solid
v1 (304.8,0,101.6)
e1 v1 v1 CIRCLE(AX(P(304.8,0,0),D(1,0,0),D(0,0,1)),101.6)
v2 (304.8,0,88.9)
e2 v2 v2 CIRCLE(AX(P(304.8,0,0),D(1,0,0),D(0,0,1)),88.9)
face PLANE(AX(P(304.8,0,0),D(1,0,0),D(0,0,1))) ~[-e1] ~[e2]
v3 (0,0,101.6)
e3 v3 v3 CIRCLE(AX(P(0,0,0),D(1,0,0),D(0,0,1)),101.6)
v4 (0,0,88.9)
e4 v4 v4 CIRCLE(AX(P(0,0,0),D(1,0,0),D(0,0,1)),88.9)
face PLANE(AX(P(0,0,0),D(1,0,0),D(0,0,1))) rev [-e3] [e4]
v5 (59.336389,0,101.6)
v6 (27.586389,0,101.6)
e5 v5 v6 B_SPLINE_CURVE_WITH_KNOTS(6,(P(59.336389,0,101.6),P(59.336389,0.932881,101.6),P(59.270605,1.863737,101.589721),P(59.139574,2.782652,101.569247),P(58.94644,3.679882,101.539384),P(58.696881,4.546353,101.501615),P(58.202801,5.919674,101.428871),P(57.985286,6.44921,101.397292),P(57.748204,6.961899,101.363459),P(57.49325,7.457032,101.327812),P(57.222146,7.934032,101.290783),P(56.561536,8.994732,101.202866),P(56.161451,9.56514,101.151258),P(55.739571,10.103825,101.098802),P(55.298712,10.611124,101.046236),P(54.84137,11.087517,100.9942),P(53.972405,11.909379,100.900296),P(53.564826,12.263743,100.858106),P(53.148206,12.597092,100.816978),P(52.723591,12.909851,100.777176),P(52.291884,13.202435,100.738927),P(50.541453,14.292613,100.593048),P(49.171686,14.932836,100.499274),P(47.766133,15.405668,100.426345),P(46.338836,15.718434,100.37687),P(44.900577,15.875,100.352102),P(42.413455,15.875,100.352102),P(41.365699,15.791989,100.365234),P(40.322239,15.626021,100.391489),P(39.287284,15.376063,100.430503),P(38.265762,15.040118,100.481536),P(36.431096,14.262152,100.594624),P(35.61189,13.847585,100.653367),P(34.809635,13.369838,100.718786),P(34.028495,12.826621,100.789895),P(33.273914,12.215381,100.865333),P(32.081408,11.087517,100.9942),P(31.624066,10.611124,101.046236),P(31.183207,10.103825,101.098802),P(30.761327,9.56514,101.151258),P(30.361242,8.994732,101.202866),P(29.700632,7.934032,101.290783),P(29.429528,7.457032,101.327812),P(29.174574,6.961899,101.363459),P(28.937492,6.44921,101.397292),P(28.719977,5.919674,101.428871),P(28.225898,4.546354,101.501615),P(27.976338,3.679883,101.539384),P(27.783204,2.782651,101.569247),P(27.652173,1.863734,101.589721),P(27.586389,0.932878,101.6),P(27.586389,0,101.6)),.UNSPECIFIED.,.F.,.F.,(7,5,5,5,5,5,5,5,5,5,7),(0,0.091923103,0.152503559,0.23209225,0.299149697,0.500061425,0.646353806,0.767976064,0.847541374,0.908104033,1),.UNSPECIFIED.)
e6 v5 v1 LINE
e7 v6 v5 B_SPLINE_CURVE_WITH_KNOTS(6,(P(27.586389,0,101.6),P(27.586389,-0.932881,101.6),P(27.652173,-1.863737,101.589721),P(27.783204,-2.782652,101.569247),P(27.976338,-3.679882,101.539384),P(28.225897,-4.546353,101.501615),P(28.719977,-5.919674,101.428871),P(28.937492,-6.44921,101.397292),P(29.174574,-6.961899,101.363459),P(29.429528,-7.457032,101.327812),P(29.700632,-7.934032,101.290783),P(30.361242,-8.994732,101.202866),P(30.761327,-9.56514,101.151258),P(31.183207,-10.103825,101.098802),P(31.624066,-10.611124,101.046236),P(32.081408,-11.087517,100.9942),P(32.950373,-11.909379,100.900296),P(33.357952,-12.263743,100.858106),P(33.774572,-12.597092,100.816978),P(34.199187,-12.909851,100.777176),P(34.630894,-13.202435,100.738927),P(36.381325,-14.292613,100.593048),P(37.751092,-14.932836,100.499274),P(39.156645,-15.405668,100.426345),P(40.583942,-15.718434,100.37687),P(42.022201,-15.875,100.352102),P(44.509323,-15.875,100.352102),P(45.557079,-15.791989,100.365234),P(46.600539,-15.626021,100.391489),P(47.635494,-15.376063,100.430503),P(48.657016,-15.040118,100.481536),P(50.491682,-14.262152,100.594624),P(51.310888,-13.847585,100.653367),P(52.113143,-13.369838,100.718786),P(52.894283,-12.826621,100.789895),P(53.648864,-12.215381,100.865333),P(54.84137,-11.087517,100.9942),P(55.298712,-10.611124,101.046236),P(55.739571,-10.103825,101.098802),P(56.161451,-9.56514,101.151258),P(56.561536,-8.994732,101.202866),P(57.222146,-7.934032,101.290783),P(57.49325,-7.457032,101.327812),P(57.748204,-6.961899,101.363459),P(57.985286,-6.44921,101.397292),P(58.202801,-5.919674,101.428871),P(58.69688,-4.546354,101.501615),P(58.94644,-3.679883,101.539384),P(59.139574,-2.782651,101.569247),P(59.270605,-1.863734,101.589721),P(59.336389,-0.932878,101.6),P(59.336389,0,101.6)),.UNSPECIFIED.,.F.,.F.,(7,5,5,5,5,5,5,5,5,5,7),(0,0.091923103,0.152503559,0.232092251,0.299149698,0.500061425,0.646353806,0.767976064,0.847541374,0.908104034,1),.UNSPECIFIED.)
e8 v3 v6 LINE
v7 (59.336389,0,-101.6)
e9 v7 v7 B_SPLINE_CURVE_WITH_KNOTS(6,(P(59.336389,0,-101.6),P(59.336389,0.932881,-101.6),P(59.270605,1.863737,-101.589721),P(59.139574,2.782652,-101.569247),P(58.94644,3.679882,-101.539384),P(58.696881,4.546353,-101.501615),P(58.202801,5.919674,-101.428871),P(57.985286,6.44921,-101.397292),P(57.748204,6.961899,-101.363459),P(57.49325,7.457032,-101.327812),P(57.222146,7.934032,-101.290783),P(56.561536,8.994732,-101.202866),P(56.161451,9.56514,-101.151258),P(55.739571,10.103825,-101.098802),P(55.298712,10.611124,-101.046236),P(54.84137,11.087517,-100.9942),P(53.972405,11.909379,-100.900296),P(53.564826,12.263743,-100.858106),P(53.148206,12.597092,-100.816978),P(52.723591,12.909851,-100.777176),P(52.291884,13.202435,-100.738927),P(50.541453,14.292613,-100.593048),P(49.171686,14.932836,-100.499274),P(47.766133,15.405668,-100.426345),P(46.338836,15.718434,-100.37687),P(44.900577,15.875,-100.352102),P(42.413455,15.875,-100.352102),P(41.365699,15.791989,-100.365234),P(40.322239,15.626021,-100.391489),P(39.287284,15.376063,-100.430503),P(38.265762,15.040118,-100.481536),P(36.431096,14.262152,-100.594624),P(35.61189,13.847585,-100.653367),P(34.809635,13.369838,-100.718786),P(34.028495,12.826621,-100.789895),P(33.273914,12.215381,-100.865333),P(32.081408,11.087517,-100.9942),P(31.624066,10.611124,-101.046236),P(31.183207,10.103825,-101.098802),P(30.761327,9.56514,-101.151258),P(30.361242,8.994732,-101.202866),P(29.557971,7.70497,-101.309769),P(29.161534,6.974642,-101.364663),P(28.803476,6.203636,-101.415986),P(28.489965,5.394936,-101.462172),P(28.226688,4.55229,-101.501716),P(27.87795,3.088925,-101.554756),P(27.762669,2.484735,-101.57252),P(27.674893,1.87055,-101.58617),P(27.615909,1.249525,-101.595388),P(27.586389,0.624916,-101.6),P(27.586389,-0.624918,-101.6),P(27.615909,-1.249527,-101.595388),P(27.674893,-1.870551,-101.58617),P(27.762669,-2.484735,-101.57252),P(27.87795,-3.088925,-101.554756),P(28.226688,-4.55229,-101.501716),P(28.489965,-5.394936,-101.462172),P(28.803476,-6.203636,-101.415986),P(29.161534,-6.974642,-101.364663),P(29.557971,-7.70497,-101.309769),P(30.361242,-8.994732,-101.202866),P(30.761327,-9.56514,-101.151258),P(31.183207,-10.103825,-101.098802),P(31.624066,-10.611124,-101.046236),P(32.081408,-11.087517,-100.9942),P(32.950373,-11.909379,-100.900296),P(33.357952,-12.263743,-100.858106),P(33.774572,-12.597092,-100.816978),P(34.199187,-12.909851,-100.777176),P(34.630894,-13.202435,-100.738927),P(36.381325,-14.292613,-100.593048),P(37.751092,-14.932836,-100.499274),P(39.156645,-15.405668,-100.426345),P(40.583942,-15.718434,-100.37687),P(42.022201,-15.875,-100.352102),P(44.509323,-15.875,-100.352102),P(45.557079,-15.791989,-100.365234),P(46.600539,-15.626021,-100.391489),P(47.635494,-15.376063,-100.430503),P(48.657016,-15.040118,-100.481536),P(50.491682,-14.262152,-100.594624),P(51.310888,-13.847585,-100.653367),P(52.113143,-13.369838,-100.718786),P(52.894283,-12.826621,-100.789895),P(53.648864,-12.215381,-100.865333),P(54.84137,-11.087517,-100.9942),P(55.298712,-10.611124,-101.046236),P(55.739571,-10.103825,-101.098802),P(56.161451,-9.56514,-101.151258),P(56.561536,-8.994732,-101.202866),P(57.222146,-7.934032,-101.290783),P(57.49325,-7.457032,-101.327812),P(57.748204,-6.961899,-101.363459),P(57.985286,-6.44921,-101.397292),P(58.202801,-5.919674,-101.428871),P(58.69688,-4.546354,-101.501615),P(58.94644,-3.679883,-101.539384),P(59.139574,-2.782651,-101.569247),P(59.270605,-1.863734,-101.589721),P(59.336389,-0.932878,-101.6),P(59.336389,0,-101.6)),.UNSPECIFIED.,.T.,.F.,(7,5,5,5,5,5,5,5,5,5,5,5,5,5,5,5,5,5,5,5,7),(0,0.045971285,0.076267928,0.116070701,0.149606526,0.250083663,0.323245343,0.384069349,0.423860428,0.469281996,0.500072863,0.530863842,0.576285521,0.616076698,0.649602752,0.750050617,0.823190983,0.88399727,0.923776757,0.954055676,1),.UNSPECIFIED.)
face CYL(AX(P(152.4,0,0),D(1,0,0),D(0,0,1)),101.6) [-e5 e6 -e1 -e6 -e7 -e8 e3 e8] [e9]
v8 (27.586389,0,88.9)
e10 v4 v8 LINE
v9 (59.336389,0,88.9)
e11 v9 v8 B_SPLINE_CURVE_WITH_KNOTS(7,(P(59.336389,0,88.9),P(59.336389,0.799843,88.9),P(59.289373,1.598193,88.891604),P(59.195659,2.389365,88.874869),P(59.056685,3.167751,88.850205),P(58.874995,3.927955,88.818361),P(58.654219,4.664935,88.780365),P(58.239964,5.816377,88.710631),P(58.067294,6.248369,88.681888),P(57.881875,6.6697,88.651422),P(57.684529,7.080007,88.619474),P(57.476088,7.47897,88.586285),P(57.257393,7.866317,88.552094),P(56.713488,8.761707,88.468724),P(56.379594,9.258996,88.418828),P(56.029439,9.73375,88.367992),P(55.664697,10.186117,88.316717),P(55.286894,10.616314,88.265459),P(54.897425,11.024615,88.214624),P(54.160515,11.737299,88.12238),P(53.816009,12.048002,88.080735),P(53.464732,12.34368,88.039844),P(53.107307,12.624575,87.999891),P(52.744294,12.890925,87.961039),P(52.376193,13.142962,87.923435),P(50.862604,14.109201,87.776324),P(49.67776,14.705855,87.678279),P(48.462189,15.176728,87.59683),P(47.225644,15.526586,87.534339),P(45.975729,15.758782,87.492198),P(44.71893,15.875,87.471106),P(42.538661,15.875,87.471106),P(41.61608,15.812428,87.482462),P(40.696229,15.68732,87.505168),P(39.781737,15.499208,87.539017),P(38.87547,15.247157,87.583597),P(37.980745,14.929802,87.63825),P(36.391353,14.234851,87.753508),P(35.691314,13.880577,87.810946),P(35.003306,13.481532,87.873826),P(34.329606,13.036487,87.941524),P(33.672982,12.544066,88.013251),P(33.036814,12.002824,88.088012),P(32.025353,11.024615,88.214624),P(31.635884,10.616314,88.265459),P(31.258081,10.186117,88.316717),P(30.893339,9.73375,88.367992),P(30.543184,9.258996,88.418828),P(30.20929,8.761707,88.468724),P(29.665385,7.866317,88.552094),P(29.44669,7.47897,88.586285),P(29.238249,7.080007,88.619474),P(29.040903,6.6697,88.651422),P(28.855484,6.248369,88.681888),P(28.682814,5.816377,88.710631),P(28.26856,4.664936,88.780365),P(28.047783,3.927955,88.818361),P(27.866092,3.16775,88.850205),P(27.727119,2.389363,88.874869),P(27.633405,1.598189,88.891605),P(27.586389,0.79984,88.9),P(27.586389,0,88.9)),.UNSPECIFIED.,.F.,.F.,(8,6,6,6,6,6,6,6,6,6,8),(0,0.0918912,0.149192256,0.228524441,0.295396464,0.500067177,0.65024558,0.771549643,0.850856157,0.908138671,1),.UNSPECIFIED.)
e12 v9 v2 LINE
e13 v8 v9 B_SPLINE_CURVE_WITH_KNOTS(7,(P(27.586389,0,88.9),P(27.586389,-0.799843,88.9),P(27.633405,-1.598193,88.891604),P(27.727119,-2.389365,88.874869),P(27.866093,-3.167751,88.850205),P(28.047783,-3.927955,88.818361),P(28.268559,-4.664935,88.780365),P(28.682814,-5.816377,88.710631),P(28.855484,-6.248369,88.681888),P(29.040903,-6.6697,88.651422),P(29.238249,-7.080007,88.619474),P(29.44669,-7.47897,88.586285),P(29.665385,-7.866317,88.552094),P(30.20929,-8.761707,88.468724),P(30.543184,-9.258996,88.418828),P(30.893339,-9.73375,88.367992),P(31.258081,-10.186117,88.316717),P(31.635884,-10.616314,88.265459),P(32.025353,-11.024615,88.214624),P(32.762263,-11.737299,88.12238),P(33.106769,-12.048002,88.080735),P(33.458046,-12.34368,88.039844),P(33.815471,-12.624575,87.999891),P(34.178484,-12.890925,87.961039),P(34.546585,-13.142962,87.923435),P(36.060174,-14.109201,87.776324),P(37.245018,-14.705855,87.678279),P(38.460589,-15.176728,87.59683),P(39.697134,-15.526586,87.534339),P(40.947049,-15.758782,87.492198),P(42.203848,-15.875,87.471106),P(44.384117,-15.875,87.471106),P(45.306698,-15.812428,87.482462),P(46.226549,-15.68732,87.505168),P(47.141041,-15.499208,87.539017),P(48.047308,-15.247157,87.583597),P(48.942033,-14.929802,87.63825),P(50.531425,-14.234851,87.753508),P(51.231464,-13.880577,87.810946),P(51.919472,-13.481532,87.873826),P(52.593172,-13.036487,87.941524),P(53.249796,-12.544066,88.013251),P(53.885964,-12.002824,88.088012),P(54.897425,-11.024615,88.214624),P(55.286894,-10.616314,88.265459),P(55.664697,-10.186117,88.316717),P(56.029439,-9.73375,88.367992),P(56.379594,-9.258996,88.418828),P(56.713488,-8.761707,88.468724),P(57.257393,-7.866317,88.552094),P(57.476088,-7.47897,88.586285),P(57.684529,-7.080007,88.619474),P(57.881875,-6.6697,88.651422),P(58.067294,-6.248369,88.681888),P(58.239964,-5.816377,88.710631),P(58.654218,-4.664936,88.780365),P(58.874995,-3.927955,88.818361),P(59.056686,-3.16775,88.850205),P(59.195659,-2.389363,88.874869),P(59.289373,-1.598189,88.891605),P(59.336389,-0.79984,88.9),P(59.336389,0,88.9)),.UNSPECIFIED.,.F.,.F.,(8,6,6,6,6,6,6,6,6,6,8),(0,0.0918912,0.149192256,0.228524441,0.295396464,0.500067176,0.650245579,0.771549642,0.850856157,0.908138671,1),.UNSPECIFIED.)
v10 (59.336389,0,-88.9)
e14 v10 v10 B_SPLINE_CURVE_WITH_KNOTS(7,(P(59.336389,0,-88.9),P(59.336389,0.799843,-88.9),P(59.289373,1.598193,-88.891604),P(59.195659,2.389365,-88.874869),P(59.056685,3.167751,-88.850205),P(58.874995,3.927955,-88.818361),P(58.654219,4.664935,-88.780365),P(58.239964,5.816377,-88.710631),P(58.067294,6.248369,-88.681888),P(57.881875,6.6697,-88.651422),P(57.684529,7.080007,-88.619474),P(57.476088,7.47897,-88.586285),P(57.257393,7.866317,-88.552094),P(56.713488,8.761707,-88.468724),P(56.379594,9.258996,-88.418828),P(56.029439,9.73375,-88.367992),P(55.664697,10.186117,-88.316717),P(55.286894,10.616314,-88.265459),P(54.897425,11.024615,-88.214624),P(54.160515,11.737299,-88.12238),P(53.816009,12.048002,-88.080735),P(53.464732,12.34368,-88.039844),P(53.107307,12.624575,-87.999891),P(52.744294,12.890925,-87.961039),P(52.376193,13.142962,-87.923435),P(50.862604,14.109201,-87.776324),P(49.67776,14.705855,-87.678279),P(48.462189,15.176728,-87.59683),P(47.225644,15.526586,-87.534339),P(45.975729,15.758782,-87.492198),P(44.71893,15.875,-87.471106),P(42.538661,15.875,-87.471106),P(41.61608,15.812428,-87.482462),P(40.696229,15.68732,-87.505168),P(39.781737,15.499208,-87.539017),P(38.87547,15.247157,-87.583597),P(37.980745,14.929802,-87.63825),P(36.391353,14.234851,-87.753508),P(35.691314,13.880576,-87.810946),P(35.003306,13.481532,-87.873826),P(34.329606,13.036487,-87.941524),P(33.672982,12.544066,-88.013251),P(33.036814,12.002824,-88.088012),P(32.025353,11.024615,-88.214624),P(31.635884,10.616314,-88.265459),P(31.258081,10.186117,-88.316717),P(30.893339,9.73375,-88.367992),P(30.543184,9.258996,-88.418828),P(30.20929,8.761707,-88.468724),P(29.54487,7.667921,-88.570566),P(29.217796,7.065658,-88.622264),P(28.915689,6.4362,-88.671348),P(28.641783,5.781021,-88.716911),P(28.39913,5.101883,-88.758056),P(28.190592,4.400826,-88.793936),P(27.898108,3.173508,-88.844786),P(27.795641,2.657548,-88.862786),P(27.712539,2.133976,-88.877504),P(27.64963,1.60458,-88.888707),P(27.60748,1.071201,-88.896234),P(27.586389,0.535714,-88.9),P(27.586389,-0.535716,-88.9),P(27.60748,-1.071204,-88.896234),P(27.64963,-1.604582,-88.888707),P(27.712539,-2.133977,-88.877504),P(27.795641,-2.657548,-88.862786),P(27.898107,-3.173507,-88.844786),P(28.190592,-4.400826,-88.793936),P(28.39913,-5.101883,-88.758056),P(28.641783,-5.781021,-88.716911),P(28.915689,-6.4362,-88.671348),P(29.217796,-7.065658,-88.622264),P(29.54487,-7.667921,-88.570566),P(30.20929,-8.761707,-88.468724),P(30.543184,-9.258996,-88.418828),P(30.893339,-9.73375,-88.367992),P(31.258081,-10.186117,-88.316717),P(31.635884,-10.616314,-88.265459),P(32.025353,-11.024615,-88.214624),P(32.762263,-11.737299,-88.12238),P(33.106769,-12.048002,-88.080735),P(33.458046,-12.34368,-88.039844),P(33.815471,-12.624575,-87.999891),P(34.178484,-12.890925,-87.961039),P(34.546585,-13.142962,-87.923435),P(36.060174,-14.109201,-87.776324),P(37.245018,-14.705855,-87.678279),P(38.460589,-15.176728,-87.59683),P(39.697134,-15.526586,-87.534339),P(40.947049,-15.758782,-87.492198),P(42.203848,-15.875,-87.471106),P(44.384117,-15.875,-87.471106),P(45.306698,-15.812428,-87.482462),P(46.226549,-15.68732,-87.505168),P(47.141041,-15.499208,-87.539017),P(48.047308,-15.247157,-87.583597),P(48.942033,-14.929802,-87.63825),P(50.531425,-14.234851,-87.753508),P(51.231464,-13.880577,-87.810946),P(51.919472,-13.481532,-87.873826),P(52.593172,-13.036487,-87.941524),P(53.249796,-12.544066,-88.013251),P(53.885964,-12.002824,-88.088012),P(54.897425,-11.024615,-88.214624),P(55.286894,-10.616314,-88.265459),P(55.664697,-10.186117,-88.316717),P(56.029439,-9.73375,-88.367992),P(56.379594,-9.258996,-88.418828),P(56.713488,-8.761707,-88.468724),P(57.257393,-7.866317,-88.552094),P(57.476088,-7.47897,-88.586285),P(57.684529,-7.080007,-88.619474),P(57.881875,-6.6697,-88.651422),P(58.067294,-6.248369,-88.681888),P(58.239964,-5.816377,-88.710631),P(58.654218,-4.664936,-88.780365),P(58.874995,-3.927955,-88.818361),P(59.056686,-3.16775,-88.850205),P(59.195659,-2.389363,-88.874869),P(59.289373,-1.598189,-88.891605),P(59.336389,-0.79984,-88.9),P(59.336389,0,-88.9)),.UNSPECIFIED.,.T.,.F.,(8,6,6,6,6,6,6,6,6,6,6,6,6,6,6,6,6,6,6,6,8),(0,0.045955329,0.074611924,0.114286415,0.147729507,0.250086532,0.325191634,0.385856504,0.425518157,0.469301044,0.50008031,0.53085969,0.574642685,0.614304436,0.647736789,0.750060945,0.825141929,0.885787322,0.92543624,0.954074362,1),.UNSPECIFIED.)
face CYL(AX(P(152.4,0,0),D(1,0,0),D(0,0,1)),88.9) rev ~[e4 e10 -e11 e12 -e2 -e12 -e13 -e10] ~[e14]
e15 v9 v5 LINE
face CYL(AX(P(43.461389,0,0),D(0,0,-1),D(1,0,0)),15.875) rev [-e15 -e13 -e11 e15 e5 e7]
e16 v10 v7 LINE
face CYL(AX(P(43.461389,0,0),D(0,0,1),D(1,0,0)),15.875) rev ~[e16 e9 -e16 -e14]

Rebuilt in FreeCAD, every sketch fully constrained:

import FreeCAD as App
import Part
import Sketcher
Q = App.Units.Quantity


def add_polygon(sketch, points):
    """Adds a closed chain of lines whose ends are joined by coincident constraints."""
    first, n = sketch.GeometryCount, len(points)
    for a, b in zip(points, points[1:] + points[:1]):
        sketch.addGeometry(Part.LineSegment(App.Vector(*a, 0), App.Vector(*b, 0)), False)
    for i in range(n):
        sketch.addConstraint(Sketcher.Constraint("Coincident", first + i, 2, first + (i + 1) % n, 1))

doc = App.newDocument("Part")
body = doc.addObject("PartDesign::Body", "Body")

sketch1 = body.newObject("Sketcher::SketchObject", "Sketch")
sketch1.AttachmentSupport = (doc.getObject("XZ_Plane"), [""])
sketch1.MapMode = "FlatFace"
add_polygon(sketch1, [(0, 102), (0, 89), (305, 89), (305, 102)])
sketch1.addConstraint(Sketcher.Constraint("Vertical", 0))
sketch1.addConstraint(Sketcher.Constraint("Horizontal", 1))
sketch1.addConstraint(Sketcher.Constraint("Vertical", 2))
sketch1.addConstraint(Sketcher.Constraint("Horizontal", 3))
sketch1.addConstraint(Sketcher.Constraint("PointOnObject", 0, 2, -2))
sketch1.addConstraint(Sketcher.Constraint("DistanceX", 1, 1, 1, 2, Q("12 in")))
sketch1.addConstraint(Sketcher.Constraint("DistanceY", 0, 2, 0, 1, Q("0.5 in")))
sketch1.addConstraint(Sketcher.Constraint("DistanceY", -1, 1, 2, 2, Q("4 in")))
revolution = body.newObject("PartDesign::Revolution", "Revolution")
revolution.Profile = sketch1
revolution.ReferenceAxis = (sketch1, ["H_Axis"])
revolution.Angle = 360

sketch2 = body.newObject("Sketcher::SketchObject", "Sketch001")
sketch2.AttachmentSupport = (doc.getObject("XY_Plane"), [""])
sketch2.MapMode = "FlatFace"
sketch2.addGeometry(Part.Circle(App.Vector(43, 0, 0), App.Vector(0, 0, 1), 16), False)
sketch2.addConstraint(Sketcher.Constraint("PointOnObject", 0, 3, -1))
sketch2.addConstraint(Sketcher.Constraint("Diameter", 0, Q("1.25 in")))
sketch2.addConstraint(Sketcher.Constraint("DistanceX", -1, 1, 0, 3, Q("43.461389 mm")))
pocket1 = body.newObject("PartDesign::Pocket", "Pocket")
pocket1.Profile = sketch2
pocket1.Type = "ThroughAll"
pocket1.Midplane = True

doc.recompute()
